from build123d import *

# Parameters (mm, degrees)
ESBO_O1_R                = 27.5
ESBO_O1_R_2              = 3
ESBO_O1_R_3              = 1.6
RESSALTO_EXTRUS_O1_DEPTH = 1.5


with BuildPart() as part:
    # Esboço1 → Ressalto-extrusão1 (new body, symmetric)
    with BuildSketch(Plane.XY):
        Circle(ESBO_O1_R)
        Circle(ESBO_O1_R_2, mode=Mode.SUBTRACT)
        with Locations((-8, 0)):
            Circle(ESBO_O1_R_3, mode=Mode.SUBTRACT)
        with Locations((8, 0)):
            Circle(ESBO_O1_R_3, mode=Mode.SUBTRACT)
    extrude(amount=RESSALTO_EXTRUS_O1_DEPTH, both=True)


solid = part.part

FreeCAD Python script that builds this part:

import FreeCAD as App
import Part
import Sketcher
from FreeCAD import Vector
Q = App.Units.Quantity

doc = App.newDocument("Part")
params = doc.addObject("Spreadsheet::Sheet", "Params")
for row, (alias, value) in enumerate([
    ("sketch1_diameter", "55 mm"),
    ("sketch1_diameter2", "6 mm"),
    ("sketch1_diameter3", "3.2 mm"),
    ("pad1_length", "3 mm"),
], start=1):
    params.set(f"A{row}", alias)
    params.set(f"B{row}", "=" + value)
    params.setAlias(f"B{row}", alias)

body = doc.addObject("PartDesign::Body", "Body")

sketch1 = body.newObject("Sketcher::SketchObject", "Sketch")
sketch1.AttachmentSupport = (doc.getObject("XY_Plane"), [""])
sketch1.MapMode = "FlatFace"
sketch1.addGeometry([
    Part.Circle(Vector(0, 0, 0), Vector(0, 0, 1), 27.5),
    Part.Circle(Vector(-8, 0, 0), Vector(0, 0, 1), 1.6),
    Part.Circle(Vector(0, 0, 0), Vector(0, 0, 1), 3),
    Part.Circle(Vector(8, 0, 0), Vector(0, 0, 1), 1.6),
], False)
sketch1.addConstraint([
    Sketcher.Constraint("Coincident", 0, 3, -1, 1),
    Sketcher.Constraint("Coincident", 2, 3, -1, 1),
    Sketcher.Constraint("Equal", 1, 3),
    Sketcher.Constraint("Symmetric", 1, 3, 3, 3, -1, 1),
    Sketcher.Constraint("PointOnObject", 1, 3, -1),
    Sketcher.Constraint("Diameter", 0, Q("55 mm")),
    Sketcher.Constraint("Diameter", 2, Q("6 mm")),
    Sketcher.Constraint("Diameter", 1, Q("3.2 mm")),
    Sketcher.Constraint("DistanceX", 1, 3, -1, 1, Q("8 mm")),
])
sketch1.setExpression("Constraints[5]", "Params.sketch1_diameter")
sketch1.setExpression("Constraints[6]", "Params.sketch1_diameter2")
sketch1.setExpression("Constraints[7]", "Params.sketch1_diameter3")
pad1 = body.newObject("PartDesign::Pad", "Pad")
pad1.Profile = sketch1
pad1.setExpression("Length", "Params.pad1_length")
pad1.Midplane = True

doc.recompute()
